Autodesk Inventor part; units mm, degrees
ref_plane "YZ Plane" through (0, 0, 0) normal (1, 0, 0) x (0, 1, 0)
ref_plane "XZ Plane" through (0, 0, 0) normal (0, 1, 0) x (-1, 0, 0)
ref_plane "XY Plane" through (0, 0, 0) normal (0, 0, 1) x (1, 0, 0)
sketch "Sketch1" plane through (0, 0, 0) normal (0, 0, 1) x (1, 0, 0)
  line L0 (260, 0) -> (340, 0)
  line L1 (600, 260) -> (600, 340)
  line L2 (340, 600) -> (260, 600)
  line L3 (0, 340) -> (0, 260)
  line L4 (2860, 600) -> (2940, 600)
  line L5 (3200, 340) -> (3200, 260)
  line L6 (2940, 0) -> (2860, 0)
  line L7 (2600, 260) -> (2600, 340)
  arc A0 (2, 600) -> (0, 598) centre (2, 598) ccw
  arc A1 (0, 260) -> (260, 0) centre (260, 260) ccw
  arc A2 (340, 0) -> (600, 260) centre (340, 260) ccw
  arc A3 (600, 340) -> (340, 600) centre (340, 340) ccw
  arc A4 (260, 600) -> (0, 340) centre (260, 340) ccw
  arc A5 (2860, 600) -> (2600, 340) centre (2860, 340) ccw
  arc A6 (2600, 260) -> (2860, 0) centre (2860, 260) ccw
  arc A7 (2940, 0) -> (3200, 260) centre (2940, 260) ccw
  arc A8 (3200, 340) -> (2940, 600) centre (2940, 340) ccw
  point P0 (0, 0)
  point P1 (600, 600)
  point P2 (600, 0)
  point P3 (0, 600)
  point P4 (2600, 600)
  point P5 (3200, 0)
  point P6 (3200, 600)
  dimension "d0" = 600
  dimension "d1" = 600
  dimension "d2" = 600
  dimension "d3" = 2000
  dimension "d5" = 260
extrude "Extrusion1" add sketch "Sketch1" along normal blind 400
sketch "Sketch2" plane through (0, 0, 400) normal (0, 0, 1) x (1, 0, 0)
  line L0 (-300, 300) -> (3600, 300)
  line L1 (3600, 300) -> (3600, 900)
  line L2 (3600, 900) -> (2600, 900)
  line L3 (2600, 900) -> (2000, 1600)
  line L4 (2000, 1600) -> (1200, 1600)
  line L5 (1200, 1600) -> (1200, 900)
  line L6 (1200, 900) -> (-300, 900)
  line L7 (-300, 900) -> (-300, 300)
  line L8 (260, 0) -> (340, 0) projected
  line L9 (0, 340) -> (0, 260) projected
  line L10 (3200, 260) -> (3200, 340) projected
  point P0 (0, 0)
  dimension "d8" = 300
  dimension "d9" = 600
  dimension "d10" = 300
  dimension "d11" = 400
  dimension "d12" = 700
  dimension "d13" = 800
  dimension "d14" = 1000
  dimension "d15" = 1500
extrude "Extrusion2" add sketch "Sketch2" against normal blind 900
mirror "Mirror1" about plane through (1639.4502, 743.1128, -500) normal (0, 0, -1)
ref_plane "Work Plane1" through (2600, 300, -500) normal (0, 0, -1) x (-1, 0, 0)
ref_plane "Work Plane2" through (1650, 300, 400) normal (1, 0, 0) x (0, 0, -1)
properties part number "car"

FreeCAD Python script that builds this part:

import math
import FreeCAD as App
import Part
import Sketcher

V = App.Vector
Q = App.Units.Quantity


def add_polygon(sketch, points):
    """Adds a closed chain of lines whose ends are joined by coincident constraints."""
    first, n = sketch.GeometryCount, len(points)
    for a, b in zip(points, points[1:] + points[:1]):
        sketch.addGeometry(Part.LineSegment(App.Vector(*a, 0), App.Vector(*b, 0)), False)
    for i in range(n):
        sketch.addConstraint(Sketcher.Constraint("Coincident", first + i, 2, first + (i + 1) % n, 1))

doc = App.newDocument("Part")
body = doc.addObject("PartDesign::Body", "Body")
body.AllowCompound = True

# Sketch on XY plane
sketch1 = body.newObject("Sketcher::SketchObject", "Sketch")
sketch1.AttachmentSupport = (doc.getObject("XY_Plane"), [""])
sketch1.MapMode = "FlatFace"
sketch1.addGeometry([
    Part.ArcOfCircle(Part.Circle(V(260, 260, 0), V(0, 0, 1), 260), math.radians(180), math.radians(270)),  # 0
    Part.LineSegment(V(260, 0, 0), V(340, 0, 0)),  # 1
    Part.ArcOfCircle(Part.Circle(V(340, 260, 0), V(0, 0, 1), 260), math.radians(-90), math.radians(0)),  # 2
    Part.LineSegment(V(600, 260, 0), V(600, 340, 0)),  # 3
    Part.ArcOfCircle(Part.Circle(V(340, 340, 0), V(0, 0, 1), 260), math.radians(0), math.radians(90)),  # 4
    Part.LineSegment(V(340, 600, 0), V(260, 600, 0)),  # 5
    Part.ArcOfCircle(Part.Circle(V(260, 340, 0), V(0, 0, 1), 260), math.radians(90), math.radians(180)),  # 6
    Part.LineSegment(V(0, 340, 0), V(0, 260, 0)),  # 7
    Part.LineSegment(V(2940, 600, 0), V(2860, 600, 0)),  # 8
    Part.ArcOfCircle(Part.Circle(V(2860, 340, 0), V(0, 0, 1), 260), math.radians(90), math.radians(180)),  # 9
    Part.LineSegment(V(2600, 340, 0), V(2600, 260, 0)),  # 10
    Part.ArcOfCircle(Part.Circle(V(2860, 260, 0), V(0, 0, 1), 260), math.radians(180), math.radians(270)),  # 11
    Part.LineSegment(V(2860, 0, 0), V(2940, 0, 0)),  # 12
    Part.ArcOfCircle(Part.Circle(V(2940, 260, 0), V(0, 0, 1), 260), math.radians(-90), math.radians(0)),  # 13
    Part.LineSegment(V(3200, 260, 0), V(3200, 340, 0)),  # 14
    Part.ArcOfCircle(Part.Circle(V(2940, 340, 0), V(0, 0, 1), 260), math.radians(0), math.radians(90)),  # 15
], False)
sketch1.addConstraint([
    Sketcher.Constraint("Tangent", 0, 2, 1, 1),
    Sketcher.Constraint("Tangent", 1, 2, 2, 1),
    Sketcher.Constraint("Tangent", 2, 2, 3, 1),
    Sketcher.Constraint("Tangent", 3, 2, 4, 1),
    Sketcher.Constraint("Tangent", 4, 2, 5, 1),
    Sketcher.Constraint("Tangent", 5, 2, 6, 1),
    Sketcher.Constraint("Tangent", 6, 2, 7, 1),
    Sketcher.Constraint("Tangent", 7, 2, 0, 1),
    Sketcher.Constraint("Tangent", 8, 2, 9, 1),
    Sketcher.Constraint("Tangent", 9, 2, 10, 1),
    Sketcher.Constraint("Tangent", 10, 2, 11, 1),
    Sketcher.Constraint("Tangent", 11, 2, 12, 1),
    Sketcher.Constraint("Tangent", 12, 2, 13, 1),
    Sketcher.Constraint("Tangent", 13, 2, 14, 1),
    Sketcher.Constraint("Tangent", 14, 2, 15, 1),
    Sketcher.Constraint("Tangent", 15, 2, 8, 1),
    Sketcher.Constraint("Horizontal", 1),
    Sketcher.Constraint("Vertical", 3),
    Sketcher.Constraint("Horizontal", 5),
    Sketcher.Constraint("Vertical", 7),
    Sketcher.Constraint("Horizontal", 8),
    Sketcher.Constraint("Vertical", 10),
    Sketcher.Constraint("Horizontal", 12),
    Sketcher.Constraint("Vertical", 14),
    Sketcher.Constraint("Equal", 0, 2),
    Sketcher.Constraint("Equal", 2, 4),
    Sketcher.Constraint("Equal", 4, 6),
    Sketcher.Constraint("Equal", 6, 9),
    Sketcher.Constraint("Equal", 9, 11),
    Sketcher.Constraint("Equal", 11, 13),
    Sketcher.Constraint("Equal", 13, 15),
    Sketcher.Constraint("PointOnObject", 0, 2, -1),
    Sketcher.Constraint("PointOnObject", 6, 2, -2),
    Sketcher.Constraint("PointOnObject", 11, 2, -1),
    Sketcher.Constraint("Horizontal", 6, 3, 9, 3),
    Sketcher.Constraint("Equal", 5, 8),
    Sketcher.Constraint("Equal", 12, 3),
    Sketcher.Constraint("Radius", 0, Q("260 mm")),
    Sketcher.Constraint("DistanceX", -1, 1, 2, 2, Q("600 mm")),
    Sketcher.Constraint("DistanceX", -1, 1, 9, 3, Q("2860 mm")),
])
pad1 = body.newObject("PartDesign::Pad", "Pad")
pad1.Profile = sketch1
pad1.Length = 400

# Sketch on XY plane
sketch2 = body.newObject("Sketcher::SketchObject", "Sketch001")
sketch2.AttachmentSupport = (doc.getObject("XY_Plane"), [""])
sketch2.MapMode = "FlatFace"
sketch2.AttachmentOffset = App.Placement(V(0, 0, 400), App.Rotation())
add_polygon(sketch2, [(-300, 900), (-300, 300), (3600, 300), (3600, 900), (2600, 900), (2000, 1600), (1200, 1600), (1200, 900)])  # lines 0-7
sketch2.addConstraint([
    Sketcher.Constraint("Vertical", 0),
    Sketcher.Constraint("Horizontal", 1),
    Sketcher.Constraint("Vertical", 2),
    Sketcher.Constraint("Horizontal", 3),
    Sketcher.Constraint("Horizontal", 5),
    Sketcher.Constraint("Vertical", 6),
    Sketcher.Constraint("Horizontal", 7),
    Sketcher.Constraint("Horizontal", 3, 2, 6, 2),
    Sketcher.Constraint("DistanceX", 3, 2, 3, 1, Q("1000 mm")),
    Sketcher.Constraint("DistanceX", 5, 2, 5, 1, Q("800 mm")),
    Sketcher.Constraint("DistanceX", 7, 2, 7, 1, Q("1500 mm")),
    Sketcher.Constraint("DistanceY", 0, 2, 0, 1, Q("600 mm")),
    Sketcher.Constraint("DistanceY", 6, 2, 6, 1, Q("700 mm")),
    Sketcher.Constraint("DistanceX", 0, 2, -1, 1, Q("300 mm")),
    Sketcher.Constraint("DistanceY", -1, 1, 0, 2, Q("300 mm")),
    Sketcher.Constraint("DistanceX", 4, 2, 3, 2, Q("600 mm")),
])
pad2 = body.newObject("PartDesign::Pad", "Pad001")
pad2.Profile = sketch2
pad2.Length = 900
pad2.Reversed = True
doc.recompute()

datumplane = body.newObject("PartDesign::Plane", "DatumPlane")
datumplane.AttachmentSupport = (doc.getObject("XY_Plane"), [""])
datumplane.MapMode = "FlatFace"
datumplane.AttachmentOffset = App.Placement(V(0, 0, -500), App.Rotation())
mirrored = body.newObject("PartDesign::Mirrored", "Mirrored")
mirrored.TransformMode = "Transform body"
mirrored.MirrorPlane = (datumplane, [""])
body.Tip = mirrored

doc.recompute()
